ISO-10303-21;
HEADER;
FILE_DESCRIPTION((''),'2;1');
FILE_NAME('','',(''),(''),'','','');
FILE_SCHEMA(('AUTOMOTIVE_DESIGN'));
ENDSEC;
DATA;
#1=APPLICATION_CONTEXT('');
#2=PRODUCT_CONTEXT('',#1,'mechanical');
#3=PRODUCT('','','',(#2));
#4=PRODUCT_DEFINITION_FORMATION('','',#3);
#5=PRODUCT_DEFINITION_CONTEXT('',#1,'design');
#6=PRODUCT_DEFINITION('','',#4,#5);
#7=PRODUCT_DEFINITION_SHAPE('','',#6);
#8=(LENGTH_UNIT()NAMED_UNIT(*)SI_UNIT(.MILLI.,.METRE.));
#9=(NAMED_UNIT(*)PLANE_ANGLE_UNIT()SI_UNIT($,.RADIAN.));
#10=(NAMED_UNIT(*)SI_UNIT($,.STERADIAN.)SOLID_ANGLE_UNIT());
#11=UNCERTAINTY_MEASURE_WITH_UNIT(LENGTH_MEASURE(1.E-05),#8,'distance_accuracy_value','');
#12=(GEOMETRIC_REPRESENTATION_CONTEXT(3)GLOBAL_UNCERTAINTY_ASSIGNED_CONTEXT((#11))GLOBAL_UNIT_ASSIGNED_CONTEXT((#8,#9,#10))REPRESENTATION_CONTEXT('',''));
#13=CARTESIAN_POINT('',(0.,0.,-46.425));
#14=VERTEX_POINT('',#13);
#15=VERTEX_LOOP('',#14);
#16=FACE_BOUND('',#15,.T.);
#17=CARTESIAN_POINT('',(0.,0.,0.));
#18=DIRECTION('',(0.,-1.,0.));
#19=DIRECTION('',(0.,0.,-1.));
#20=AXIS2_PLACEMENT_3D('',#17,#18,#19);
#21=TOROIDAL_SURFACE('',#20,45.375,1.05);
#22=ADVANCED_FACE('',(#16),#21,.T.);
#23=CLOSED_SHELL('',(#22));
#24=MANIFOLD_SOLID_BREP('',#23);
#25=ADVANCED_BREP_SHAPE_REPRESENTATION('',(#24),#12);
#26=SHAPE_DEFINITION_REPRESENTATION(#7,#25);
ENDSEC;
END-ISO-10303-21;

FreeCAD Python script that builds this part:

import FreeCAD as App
import Part
import Sketcher

V = App.Vector

doc = App.newDocument("Part")
body = doc.addObject("PartDesign::Body", "Body")

sketch1 = doc.addObject("Sketcher::SketchObject", "Sketch")
body.addObject(sketch1)
sketch1.AttachmentSupport = (doc.YZ_Plane, [""])
sketch1.MapMode = "FlatFace"
sketch1.addGeometry(Part.Circle(V(0, -45.4, 0), V(0, 0, 1), 1.1), False)
sketch1.addConstraint([
    Sketcher.Constraint("PointOnObject", 0, 3, -2),
    Sketcher.Constraint("Diameter", 0, 2.1),
    Sketcher.Constraint("DistanceY", 0, 3, -1, 1, 45.375),
])
revolution = doc.addObject("PartDesign::Revolution", "Revolution")
body.addObject(revolution)
revolution.Profile = sketch1
revolution.ReferenceAxis = (sketch1, ["H_Axis"])
revolution.Angle = 360

doc.recompute()
